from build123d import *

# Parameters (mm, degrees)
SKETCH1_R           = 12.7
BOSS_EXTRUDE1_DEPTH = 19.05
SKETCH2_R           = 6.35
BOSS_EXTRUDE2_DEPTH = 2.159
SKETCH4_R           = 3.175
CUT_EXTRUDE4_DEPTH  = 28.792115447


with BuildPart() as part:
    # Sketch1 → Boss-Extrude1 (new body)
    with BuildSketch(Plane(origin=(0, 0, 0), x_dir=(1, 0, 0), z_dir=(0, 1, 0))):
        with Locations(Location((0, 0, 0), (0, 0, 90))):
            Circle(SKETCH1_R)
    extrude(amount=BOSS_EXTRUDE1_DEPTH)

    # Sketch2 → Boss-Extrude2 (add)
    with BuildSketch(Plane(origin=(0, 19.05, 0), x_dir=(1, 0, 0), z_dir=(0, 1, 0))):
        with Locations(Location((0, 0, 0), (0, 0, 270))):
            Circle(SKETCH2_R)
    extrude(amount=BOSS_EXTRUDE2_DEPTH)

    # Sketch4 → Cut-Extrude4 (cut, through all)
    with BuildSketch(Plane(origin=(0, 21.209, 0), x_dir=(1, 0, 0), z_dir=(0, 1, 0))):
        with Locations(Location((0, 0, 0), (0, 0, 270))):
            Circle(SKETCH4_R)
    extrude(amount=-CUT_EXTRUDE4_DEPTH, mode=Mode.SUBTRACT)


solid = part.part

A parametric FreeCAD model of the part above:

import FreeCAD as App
import Part
import Sketcher

V = App.Vector
Q = App.Units.Quantity

doc = App.newDocument("Part")
body = doc.addObject("PartDesign::Body", "Body")

sketch1 = body.newObject("Sketcher::SketchObject", "Sketch")
sketch1.AttachmentSupport = (doc.getObject("XZ_Plane"), [""])
sketch1.MapMode = "FlatFace"
sketch1.addGeometry(Part.Circle(V(0, 0, 0), V(0, 0, 1), 13), False)
sketch1.addConstraint([
    Sketcher.Constraint("Coincident", 0, 3, -1, 1),
    Sketcher.Constraint("Diameter", 0, Q("1 in")),
])
pad1 = body.newObject("PartDesign::Pad", "Pad")
pad1.Profile = sketch1
pad1.Length = Q("0.75 in")
pad1.Reversed = True

sketch2 = body.newObject("Sketcher::SketchObject", "Sketch001")
sketch2.AttachmentSupport = (doc.getObject("XZ_Plane"), [""])
sketch2.MapMode = "FlatFace"
sketch2.AttachmentOffset = App.Placement(V(0, 0, -0.75 * 25.4), App.Rotation())
sketch2.addGeometry(Part.Circle(V(0, 0, 0), V(0, 0, 1), 6), False)
sketch2.addConstraint([
    Sketcher.Constraint("Coincident", 0, 3, -1, 1),
    Sketcher.Constraint("Diameter", 0, Q("0.5 in")),
])
pad2 = body.newObject("PartDesign::Pad", "Pad001")
pad2.Profile = sketch2
pad2.Length = Q("0.085 in")
pad2.Reversed = True

sketch3 = body.newObject("Sketcher::SketchObject", "Sketch002")
sketch3.AttachmentSupport = (doc.getObject("XZ_Plane"), [""])
sketch3.MapMode = "FlatFace"
sketch3.AttachmentOffset = App.Placement(V(0, 0, -0.835 * 25.4), App.Rotation())
sketch3.addGeometry(Part.Circle(V(0, 0, 0), V(0, 0, 1), 3.2), False)
sketch3.addConstraint([
    Sketcher.Constraint("Coincident", 0, 3, -1, 1),
    Sketcher.Constraint("Diameter", 0, Q("0.25 in")),
])
pocket1 = body.newObject("PartDesign::Pocket", "Pocket")
pocket1.Profile = sketch3
pocket1.Type = "ThroughAll"
pocket1.Reversed = True

doc.recompute()
